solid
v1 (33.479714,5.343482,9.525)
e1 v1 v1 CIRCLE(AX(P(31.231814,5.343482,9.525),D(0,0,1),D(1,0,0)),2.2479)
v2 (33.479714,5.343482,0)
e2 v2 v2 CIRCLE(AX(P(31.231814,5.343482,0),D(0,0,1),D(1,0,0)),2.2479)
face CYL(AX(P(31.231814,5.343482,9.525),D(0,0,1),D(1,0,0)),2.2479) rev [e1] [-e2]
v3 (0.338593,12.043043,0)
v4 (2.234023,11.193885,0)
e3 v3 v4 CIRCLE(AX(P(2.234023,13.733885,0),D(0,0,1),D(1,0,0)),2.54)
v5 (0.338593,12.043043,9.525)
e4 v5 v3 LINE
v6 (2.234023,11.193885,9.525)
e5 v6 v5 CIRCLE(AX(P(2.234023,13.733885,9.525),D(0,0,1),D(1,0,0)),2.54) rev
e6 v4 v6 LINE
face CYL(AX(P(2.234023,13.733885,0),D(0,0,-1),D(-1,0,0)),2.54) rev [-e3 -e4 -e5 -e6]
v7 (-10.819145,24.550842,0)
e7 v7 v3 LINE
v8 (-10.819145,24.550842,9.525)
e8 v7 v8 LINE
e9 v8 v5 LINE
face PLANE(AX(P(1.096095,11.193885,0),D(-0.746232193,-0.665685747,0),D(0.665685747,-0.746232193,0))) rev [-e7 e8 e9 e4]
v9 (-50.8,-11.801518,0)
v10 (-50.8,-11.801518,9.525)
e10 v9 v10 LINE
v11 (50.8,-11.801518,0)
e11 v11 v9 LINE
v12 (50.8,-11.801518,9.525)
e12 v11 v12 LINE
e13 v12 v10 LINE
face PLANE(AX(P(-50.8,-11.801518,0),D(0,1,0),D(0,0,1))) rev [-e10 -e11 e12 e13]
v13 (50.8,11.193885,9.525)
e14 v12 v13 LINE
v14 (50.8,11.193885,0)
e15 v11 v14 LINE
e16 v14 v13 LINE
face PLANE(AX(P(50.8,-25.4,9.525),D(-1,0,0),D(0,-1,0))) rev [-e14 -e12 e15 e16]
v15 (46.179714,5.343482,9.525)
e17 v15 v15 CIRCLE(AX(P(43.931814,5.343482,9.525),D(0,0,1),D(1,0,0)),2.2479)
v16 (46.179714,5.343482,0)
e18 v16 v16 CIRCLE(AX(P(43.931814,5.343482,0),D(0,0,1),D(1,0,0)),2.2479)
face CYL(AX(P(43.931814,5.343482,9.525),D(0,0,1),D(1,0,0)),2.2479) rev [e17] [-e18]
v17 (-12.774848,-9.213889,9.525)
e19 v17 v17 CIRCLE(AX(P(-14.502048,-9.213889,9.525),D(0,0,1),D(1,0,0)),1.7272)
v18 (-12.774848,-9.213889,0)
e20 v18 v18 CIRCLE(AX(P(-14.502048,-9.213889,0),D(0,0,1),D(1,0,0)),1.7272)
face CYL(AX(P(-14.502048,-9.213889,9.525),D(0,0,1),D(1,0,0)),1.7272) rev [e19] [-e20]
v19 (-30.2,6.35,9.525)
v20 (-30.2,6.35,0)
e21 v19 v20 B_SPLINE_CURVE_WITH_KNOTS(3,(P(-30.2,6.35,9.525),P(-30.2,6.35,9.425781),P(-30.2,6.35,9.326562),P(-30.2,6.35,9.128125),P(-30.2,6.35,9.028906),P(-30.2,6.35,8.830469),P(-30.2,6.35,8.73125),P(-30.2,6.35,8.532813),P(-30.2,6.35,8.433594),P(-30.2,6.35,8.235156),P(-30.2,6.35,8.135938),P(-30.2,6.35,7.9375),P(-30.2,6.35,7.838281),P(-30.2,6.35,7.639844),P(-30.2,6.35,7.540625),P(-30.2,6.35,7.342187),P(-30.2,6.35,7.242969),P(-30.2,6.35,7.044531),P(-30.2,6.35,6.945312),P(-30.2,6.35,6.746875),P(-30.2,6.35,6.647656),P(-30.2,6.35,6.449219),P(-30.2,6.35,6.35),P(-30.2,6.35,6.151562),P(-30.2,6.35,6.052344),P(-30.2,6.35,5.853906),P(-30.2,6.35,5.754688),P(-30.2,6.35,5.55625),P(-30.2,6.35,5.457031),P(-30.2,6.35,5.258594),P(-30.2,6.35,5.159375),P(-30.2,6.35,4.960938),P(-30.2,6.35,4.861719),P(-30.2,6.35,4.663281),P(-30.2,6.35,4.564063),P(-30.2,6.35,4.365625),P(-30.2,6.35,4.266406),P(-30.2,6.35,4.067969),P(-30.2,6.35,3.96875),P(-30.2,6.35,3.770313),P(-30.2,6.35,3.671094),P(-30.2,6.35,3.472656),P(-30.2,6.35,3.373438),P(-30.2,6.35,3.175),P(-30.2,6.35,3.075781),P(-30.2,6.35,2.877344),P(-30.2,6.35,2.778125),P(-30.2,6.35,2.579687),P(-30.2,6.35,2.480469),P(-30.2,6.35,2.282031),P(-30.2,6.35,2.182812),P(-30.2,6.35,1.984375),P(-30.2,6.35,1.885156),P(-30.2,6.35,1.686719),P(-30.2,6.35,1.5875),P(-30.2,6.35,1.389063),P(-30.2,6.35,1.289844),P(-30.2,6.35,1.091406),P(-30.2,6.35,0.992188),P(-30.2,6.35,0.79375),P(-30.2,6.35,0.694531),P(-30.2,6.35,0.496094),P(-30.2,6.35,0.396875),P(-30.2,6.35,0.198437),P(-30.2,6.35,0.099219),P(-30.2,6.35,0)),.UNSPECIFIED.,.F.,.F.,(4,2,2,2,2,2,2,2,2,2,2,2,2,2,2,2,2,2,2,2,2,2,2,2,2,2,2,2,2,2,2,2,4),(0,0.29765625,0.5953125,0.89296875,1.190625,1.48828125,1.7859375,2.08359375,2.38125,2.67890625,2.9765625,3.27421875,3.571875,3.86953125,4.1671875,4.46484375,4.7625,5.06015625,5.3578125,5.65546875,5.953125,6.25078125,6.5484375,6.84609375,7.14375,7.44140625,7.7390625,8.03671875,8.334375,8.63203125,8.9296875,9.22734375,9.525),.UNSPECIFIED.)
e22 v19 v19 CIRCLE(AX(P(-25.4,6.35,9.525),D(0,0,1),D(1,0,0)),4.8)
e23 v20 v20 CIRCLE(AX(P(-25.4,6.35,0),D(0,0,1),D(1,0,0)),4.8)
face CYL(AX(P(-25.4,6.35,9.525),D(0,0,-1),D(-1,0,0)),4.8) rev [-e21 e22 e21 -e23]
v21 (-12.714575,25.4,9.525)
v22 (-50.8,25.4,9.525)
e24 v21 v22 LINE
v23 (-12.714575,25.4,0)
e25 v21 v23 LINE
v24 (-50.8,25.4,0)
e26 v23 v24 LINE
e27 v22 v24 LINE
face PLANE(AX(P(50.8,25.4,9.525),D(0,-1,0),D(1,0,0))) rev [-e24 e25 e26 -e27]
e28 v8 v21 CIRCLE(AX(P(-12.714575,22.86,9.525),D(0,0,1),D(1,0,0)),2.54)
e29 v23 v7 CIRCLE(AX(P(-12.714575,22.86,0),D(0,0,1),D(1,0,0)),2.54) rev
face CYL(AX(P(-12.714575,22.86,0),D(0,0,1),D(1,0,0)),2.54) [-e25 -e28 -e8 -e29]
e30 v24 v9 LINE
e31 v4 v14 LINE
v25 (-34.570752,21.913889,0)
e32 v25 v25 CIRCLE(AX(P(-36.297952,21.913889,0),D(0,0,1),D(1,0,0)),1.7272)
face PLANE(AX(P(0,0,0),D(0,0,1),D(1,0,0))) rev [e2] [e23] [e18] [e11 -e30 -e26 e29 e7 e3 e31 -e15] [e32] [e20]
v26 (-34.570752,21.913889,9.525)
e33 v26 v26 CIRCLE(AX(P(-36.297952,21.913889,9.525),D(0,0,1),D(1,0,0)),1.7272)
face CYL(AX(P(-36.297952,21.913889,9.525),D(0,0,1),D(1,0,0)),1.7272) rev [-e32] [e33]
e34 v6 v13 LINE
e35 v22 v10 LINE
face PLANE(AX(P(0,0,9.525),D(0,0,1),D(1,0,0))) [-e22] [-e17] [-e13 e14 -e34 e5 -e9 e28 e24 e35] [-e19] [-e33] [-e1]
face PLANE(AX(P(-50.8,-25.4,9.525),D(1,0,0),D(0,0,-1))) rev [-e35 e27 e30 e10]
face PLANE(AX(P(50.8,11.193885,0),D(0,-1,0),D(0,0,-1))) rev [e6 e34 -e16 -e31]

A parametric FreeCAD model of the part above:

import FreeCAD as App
import Part
import Sketcher
Q = App.Units.Quantity


def edges_at(feature, points):
    """Names of the edges that pass closest to the given points."""
    edges = feature.Shape.Edges
    near = lambda p: min(range(len(edges)), key=lambda i: edges[i].distToShape(Part.Vertex(*p))[0])
    return sorted({f"Edge{near(p) + 1}" for p in points})

doc = App.newDocument("Part")
body = doc.addObject("PartDesign::Body", "Body")

sketch1 = body.newObject("Sketcher::SketchObject", "Sketch")
sketch1.AttachmentSupport = (doc.getObject("XY_Plane"), [""])
sketch1.MapMode = "FlatFace"
sketch1.addGeometry(Part.LineSegment(App.Vector(-51, 25, 0), App.Vector(-51, -25, 0)), False)
sketch1.addGeometry(Part.LineSegment(App.Vector(-51, -25, 0), App.Vector(51, -25, 0)), False)
sketch1.addGeometry(Part.LineSegment(App.Vector(51, -25, 0), App.Vector(51, 25, 0)), False)
sketch1.addGeometry(Part.LineSegment(App.Vector(51, 25, 0), App.Vector(-51, 25, 0)), False)
sketch1.addConstraint(Sketcher.Constraint("Coincident", 0, 2, 1, 1))
sketch1.addConstraint(Sketcher.Constraint("Coincident", 1, 2, 2, 1))
sketch1.addConstraint(Sketcher.Constraint("Coincident", 2, 2, 3, 1))
sketch1.addConstraint(Sketcher.Constraint("Coincident", 3, 2, 0, 1))
sketch1.addConstraint(Sketcher.Constraint("Vertical", 0))
sketch1.addConstraint(Sketcher.Constraint("Horizontal", 1))
sketch1.addConstraint(Sketcher.Constraint("Vertical", 2))
sketch1.addConstraint(Sketcher.Constraint("Horizontal", 3))
sketch1.addConstraint(Sketcher.Constraint("Symmetric", 0, 2, 2, 2, -1, 1))
sketch1.addConstraint(Sketcher.Constraint("DistanceX", 1, 1, 1, 2, Q("4 in")))
sketch1.addConstraint(Sketcher.Constraint("DistanceY", 0, 2, 0, 1, Q("2 in")))
pad1 = body.newObject("PartDesign::Pad", "Pad")
pad1.Profile = sketch1
pad1.Length = Q("0.375 in")

sketch2 = body.newObject("Sketcher::SketchObject", "Sketch001")
sketch2.AttachmentSupport = (doc.getObject("XY_Plane"), [""])
sketch2.MapMode = "FlatFace"
sketch2.addGeometry(Part.Circle(App.Vector(-25.4, 6.3, 0), App.Vector(0, 0, 1), 4.8), False)
sketch2.addConstraint(Sketcher.Constraint("DistanceX", 0, 3, -1, 1, Q("1 in")))
sketch2.addConstraint(Sketcher.Constraint("Diameter", 0, Q("9.6 mm")))
sketch2.addConstraint(Sketcher.Constraint("DistanceY", -1, 1, 0, 3, Q("0.25 in")))
pocket1 = body.newObject("PartDesign::Pocket", "Pocket")
pocket1.Profile = sketch2
pocket1.Type = "ThroughAll"
pocket1.Reversed = True

sketch3 = body.newObject("Sketcher::SketchObject", "Sketch002")
sketch3.AttachmentSupport = (doc.getObject("XY_Plane"), [""])
sketch3.MapMode = "FlatFace"
sketch3.AttachmentOffset = App.Placement(App.Vector(0, 0, 0.375 * 25.4), App.Rotation())
sketch3.addGeometry(Part.Circle(App.Vector(-14.5, -9.2, 0), App.Vector(0, 0, 1), 1.7), False)
sketch3.addGeometry(Part.Circle(App.Vector(-36.3, 21.9, 0), App.Vector(0, 0, 1), 1.7), False)
sketch3.addConstraint(Sketcher.Constraint("Equal", 0, 1))
sketch3.addConstraint(Sketcher.Constraint("Diameter", 0, Q("0.136 in")))
sketch3.addConstraint(Sketcher.Constraint("DistanceY", 0, 3, -1, 1, Q("9.213889 mm")))
sketch3.addConstraint(Sketcher.Constraint("DistanceY", -1, 1, 1, 3, Q("21.913889 mm")))
sketch3.addConstraint(Sketcher.Constraint("DistanceX", 0, 3, -1, 1, Q("14.502048 mm")))
sketch3.addConstraint(Sketcher.Constraint("DistanceX", 1, 3, -1, 1, Q("36.297952 mm")))
doc.recompute()
hole = body.newObject("PartDesign::Hole", "Hole")
hole.Profile = sketch3
hole.ThreadType = "None"
hole.Diameter = Q("0.136 in")
hole.DepthType = "ThroughAll"

sketch4 = body.newObject("Sketcher::SketchObject", "Sketch003")
sketch4.AttachmentSupport = (doc.getObject("XY_Plane"), [""])
sketch4.MapMode = "FlatFace"
sketch4.AttachmentOffset = App.Placement(App.Vector(0, 0, 0.375 * 25.4), App.Rotation())
sketch4.addGeometry(Part.Circle(App.Vector(31.2, 5.3, 0), App.Vector(0, 0, 1), 2.2), False)
sketch4.addGeometry(Part.Circle(App.Vector(43.9, 5.3, 0), App.Vector(0, 0, 1), 2.2), False)
sketch4.addConstraint(Sketcher.Constraint("Equal", 0, 1))
sketch4.addConstraint(Sketcher.Constraint("Horizontal", 0, 3, 1, 3))
sketch4.addConstraint(Sketcher.Constraint("Diameter", 0, Q("0.177 in")))
sketch4.addConstraint(Sketcher.Constraint("DistanceX", 0, 3, 1, 3, Q("0.5 in")))
sketch4.addConstraint(Sketcher.Constraint("DistanceY", -1, 1, 0, 3, Q("5.343482 mm")))
sketch4.addConstraint(Sketcher.Constraint("DistanceX", -1, 1, 0, 3, Q("31.231814 mm")))
doc.recompute()
hole2 = body.newObject("PartDesign::Hole", "Hole001")
hole2.Profile = sketch4
hole2.ThreadType = "None"
hole2.Diameter = Q("0.177 in")
hole2.DepthType = "ThroughAll"

sketch5 = body.newObject("Sketcher::SketchObject", "Sketch004")
sketch5.AttachmentSupport = (doc.getObject("XY_Plane"), [""])
sketch5.MapMode = "FlatFace"
sketch5.AttachmentOffset = App.Placement(App.Vector(0, 0, 0.375 * 25.4), App.Rotation())
sketch5.addGeometry(Part.LineSegment(App.Vector(-51, -12, 0), App.Vector(-51, -49, 0)), False)
sketch5.addGeometry(Part.LineSegment(App.Vector(-51, -49, 0), App.Vector(51, -49, 0)), False)
sketch5.addGeometry(Part.LineSegment(App.Vector(51, -49, 0), App.Vector(51, -12, 0)), False)
sketch5.addGeometry(Part.LineSegment(App.Vector(51, -12, 0), App.Vector(-51, -12, 0)), False)
sketch5.addConstraint(Sketcher.Constraint("Coincident", 0, 2, 1, 1))
sketch5.addConstraint(Sketcher.Constraint("Coincident", 1, 2, 2, 1))
sketch5.addConstraint(Sketcher.Constraint("Coincident", 2, 2, 3, 1))
sketch5.addConstraint(Sketcher.Constraint("Coincident", 3, 2, 0, 1))
sketch5.addConstraint(Sketcher.Constraint("Vertical", 0))
sketch5.addConstraint(Sketcher.Constraint("Horizontal", 1))
sketch5.addConstraint(Sketcher.Constraint("Vertical", 2))
sketch5.addConstraint(Sketcher.Constraint("Horizontal", 3))
sketch5.addConstraint(Sketcher.Constraint("DistanceX", 1, 1, 1, 2, Q("4 in")))
sketch5.addConstraint(Sketcher.Constraint("DistanceX", 0, 2, -1, 1, Q("2 in")))
sketch5.addConstraint(Sketcher.Constraint("DistanceY", 0, 2, 0, 1, Q("37.138908 mm")))
sketch5.addConstraint(Sketcher.Constraint("DistanceY", 2, 2, -1, 1, Q("11.801518 mm")))
pocket2 = body.newObject("PartDesign::Pocket", "Pocket001")
pocket2.Profile = sketch5
pocket2.Type = "ThroughAll"

sketch6 = body.newObject("Sketcher::SketchObject", "Sketch005")
sketch6.AttachmentSupport = (doc.getObject("XY_Plane"), [""])
sketch6.MapMode = "FlatFace"
sketch6.AttachmentOffset = App.Placement(App.Vector(0, 0, 0.375 * 25.4), App.Rotation())
sketch6.addGeometry(Part.LineSegment(App.Vector(1, 11, 0), App.Vector(51, 11, 0)), False)
sketch6.addGeometry(Part.LineSegment(App.Vector(51, 11, 0), App.Vector(51, 25, 0)), False)
sketch6.addGeometry(Part.LineSegment(App.Vector(51, 25, 0), App.Vector(-12, 25, 0)), False)
sketch6.addGeometry(Part.LineSegment(App.Vector(-12, 25, 0), App.Vector(1, 11, 0)), False)
sketch6.addConstraint(Sketcher.Constraint("Coincident", 0, 2, 1, 1))
sketch6.addConstraint(Sketcher.Constraint("Coincident", 1, 2, 2, 1))
sketch6.addConstraint(Sketcher.Constraint("Coincident", 2, 2, 3, 1))
sketch6.addConstraint(Sketcher.Constraint("Coincident", 3, 2, 0, 1))
sketch6.addConstraint(Sketcher.Constraint("Horizontal", 0))
sketch6.addConstraint(Sketcher.Constraint("Vertical", 1))
sketch6.addConstraint(Sketcher.Constraint("Horizontal", 2))
sketch6.addConstraint(Sketcher.Constraint("DistanceX", -1, 1, 0, 2, Q("2 in")))
sketch6.addConstraint(Sketcher.Constraint("DistanceY", -1, 1, 1, 2, Q("1 in")))
sketch6.addConstraint(Sketcher.Constraint("DistanceX", 0, 1, 0, 2, Q("49.703905 mm")))
sketch6.addConstraint(Sketcher.Constraint("DistanceX", 2, 2, 2, 1, Q("62.376647 mm")))
sketch6.addConstraint(Sketcher.Constraint("DistanceY", 1, 1, 1, 2, Q("14.206115 mm")))
pocket3 = body.newObject("PartDesign::Pocket", "Pocket002")
pocket3.Profile = sketch6
pocket3.Type = "ThroughAll"
doc.recompute()

fillet = body.newObject("PartDesign::Fillet", "Fillet")
fillet.Base = (pocket3, edges_at(pocket3, [(1.096, 11.194, 4.763), (-11.577, 25.4, 4.763)]))
fillet.Radius = Q("0.1 in")

doc.recompute()
